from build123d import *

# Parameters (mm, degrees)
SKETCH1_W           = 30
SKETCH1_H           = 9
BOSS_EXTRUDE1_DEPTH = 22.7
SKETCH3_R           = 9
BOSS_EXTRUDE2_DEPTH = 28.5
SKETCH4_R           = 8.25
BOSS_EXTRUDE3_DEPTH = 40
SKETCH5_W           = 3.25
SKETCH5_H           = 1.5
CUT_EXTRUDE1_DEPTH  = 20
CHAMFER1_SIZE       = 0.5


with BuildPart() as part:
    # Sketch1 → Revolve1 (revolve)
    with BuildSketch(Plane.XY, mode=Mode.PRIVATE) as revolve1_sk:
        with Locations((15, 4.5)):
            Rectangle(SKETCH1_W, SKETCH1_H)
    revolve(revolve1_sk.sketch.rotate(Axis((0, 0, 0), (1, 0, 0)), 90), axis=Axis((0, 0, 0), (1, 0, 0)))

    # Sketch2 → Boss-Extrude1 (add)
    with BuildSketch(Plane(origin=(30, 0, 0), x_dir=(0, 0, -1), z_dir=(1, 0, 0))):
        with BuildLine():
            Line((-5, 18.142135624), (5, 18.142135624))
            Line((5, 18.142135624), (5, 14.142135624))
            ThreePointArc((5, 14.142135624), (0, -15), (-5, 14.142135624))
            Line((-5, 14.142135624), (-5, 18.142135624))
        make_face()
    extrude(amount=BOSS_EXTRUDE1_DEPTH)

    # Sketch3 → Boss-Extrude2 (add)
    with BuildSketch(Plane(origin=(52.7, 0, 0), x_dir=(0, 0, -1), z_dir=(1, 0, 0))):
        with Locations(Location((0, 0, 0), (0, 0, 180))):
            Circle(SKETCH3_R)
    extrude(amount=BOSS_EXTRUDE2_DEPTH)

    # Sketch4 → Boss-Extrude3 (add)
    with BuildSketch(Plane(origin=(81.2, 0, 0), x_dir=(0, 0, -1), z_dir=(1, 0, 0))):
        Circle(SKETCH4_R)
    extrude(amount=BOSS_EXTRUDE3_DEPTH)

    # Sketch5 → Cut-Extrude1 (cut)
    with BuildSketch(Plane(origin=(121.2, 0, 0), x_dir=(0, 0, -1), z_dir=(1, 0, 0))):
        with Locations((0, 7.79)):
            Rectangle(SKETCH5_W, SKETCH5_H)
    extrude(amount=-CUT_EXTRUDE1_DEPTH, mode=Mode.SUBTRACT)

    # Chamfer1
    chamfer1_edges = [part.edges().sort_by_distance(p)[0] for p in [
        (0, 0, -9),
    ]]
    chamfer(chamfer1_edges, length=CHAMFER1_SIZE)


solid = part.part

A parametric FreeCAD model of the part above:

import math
import FreeCAD as App
import Part
import Sketcher


def edges_at(feature, points):
    """Names of the edges that pass closest to the given points."""
    edges = feature.Shape.Edges
    near = lambda p: min(range(len(edges)), key=lambda i: edges[i].distToShape(Part.Vertex(*p))[0])
    return sorted({f"Edge{near(p) + 1}" for p in points})

doc = App.newDocument("Part")
params = doc.addObject("Spreadsheet::Sheet", "Params")
for row, (alias, value) in enumerate([
    ("sketch1_width", "30 mm"),
    ("sketch1_height", "9 mm"),
    ("revolution_angle", "360 deg"),
    ("sketch2_radius", "15 mm"),
    ("sketch2_width", "4 mm"),
    ("sketch2_height", "10 mm"),
    ("pad1_length", "22.7 mm"),
    ("sketch3_diameter", "18 mm"),
    ("pad2_length", "28.5 mm"),
    ("sketch4_diameter", "16.5 mm"),
    ("pad3_length", "40 mm"),
    ("sketch5_width", "1.5 mm"),
    ("sketch5_height", "3.25 mm"),
    ("pocket1_length", "20 mm"),
    ("chamfer_size", "0.5 mm"),
], start=1):
    params.set(f"A{row}", alias)
    params.set(f"B{row}", "=" + value)
    params.setAlias(f"B{row}", alias)

body = doc.addObject("PartDesign::Body", "Body")

sketch1 = body.newObject("Sketcher::SketchObject", "Sketch")
sketch1.AttachmentSupport = (doc.getObject("XY_Plane"), [""])
sketch1.MapMode = "FlatFace"
sketch1.addGeometry(Part.LineSegment(App.Vector(0, 9, 0), App.Vector(0, 0, 0)), False)
sketch1.addGeometry(Part.LineSegment(App.Vector(0, 0, 0), App.Vector(30, 0, 0)), False)
sketch1.addGeometry(Part.LineSegment(App.Vector(30, 0, 0), App.Vector(30, 9, 0)), False)
sketch1.addGeometry(Part.LineSegment(App.Vector(30, 9, 0), App.Vector(0, 9, 0)), False)
sketch1.addConstraint(Sketcher.Constraint("Coincident", 0, 2, 1, 1))
sketch1.addConstraint(Sketcher.Constraint("Coincident", 1, 2, 2, 1))
sketch1.addConstraint(Sketcher.Constraint("Coincident", 2, 2, 3, 1))
sketch1.addConstraint(Sketcher.Constraint("Coincident", 3, 2, 0, 1))
sketch1.addConstraint(Sketcher.Constraint("Vertical", 0))
sketch1.addConstraint(Sketcher.Constraint("Horizontal", 1))
sketch1.addConstraint(Sketcher.Constraint("Vertical", 2))
sketch1.addConstraint(Sketcher.Constraint("Horizontal", 3))
sketch1.addConstraint(Sketcher.Constraint("Coincident", 0, 2, -1, 1))
sketch1.addConstraint(Sketcher.Constraint("DistanceX", 1, 1, 1, 2, 30.0))
sketch1.addConstraint(Sketcher.Constraint("DistanceY", 0, 2, 0, 1, 9.0))
sketch1.setExpression("Constraints[9]", "Params.sketch1_width")
sketch1.setExpression("Constraints[10]", "Params.sketch1_height")
revolution = body.newObject("PartDesign::Revolution", "Revolution")
revolution.Profile = sketch1
revolution.ReferenceAxis = (sketch1, ["H_Axis"])
revolution.setExpression("Angle", "Params.revolution_angle")

sketch2 = body.newObject("Sketcher::SketchObject", "Sketch001")
sketch2.AttachmentSupport = (doc.getObject("YZ_Plane"), [""])
sketch2.MapMode = "FlatFace"
sketch2.AttachmentOffset = App.Placement(App.Vector(0, 0, 30), App.Rotation())
sketch2.addGeometry(Part.LineSegment(App.Vector(18.1, -5, 0), App.Vector(18.1, 5, 0)), False)
sketch2.addGeometry(Part.LineSegment(App.Vector(18.1, 5, 0), App.Vector(14.1, 5, 0)), False)
sketch2.addGeometry(Part.ArcOfCircle(Part.Circle(App.Vector(0, 0, 0), App.Vector(0, 0, 1), 15), math.radians(19), math.radians(341)), False)
sketch2.addGeometry(Part.LineSegment(App.Vector(14.1, -5, 0), App.Vector(18.1, -5, 0)), False)
sketch2.addConstraint(Sketcher.Constraint("Coincident", 0, 2, 1, 1))
sketch2.addConstraint(Sketcher.Constraint("Coincident", 1, 2, 2, 1))
sketch2.addConstraint(Sketcher.Constraint("Coincident", 2, 2, 3, 1))
sketch2.addConstraint(Sketcher.Constraint("Coincident", 3, 2, 0, 1))
sketch2.addConstraint(Sketcher.Constraint("Vertical", 0))
sketch2.addConstraint(Sketcher.Constraint("Horizontal", 1))
sketch2.addConstraint(Sketcher.Constraint("Horizontal", 3))
sketch2.addConstraint(Sketcher.Constraint("Coincident", 2, 3, -1, 1))
sketch2.addConstraint(Sketcher.Constraint("Vertical", 1, 2, 2, 2))
sketch2.addConstraint(Sketcher.Constraint("Radius", 2, 15.0))
sketch2.addConstraint(Sketcher.Constraint("DistanceX", 1, 2, 1, 1, 4.0))
sketch2.addConstraint(Sketcher.Constraint("DistanceY", 0, 1, 0, 2, 10.0))
sketch2.setExpression("Constraints[9]", "Params.sketch2_radius")
sketch2.setExpression("Constraints[10]", "Params.sketch2_width")
sketch2.setExpression("Constraints[11]", "Params.sketch2_height")
pad1 = body.newObject("PartDesign::Pad", "Pad")
pad1.Profile = sketch2
pad1.setExpression("Length", "Params.pad1_length")

sketch3 = body.newObject("Sketcher::SketchObject", "Sketch002")
sketch3.AttachmentSupport = (doc.getObject("YZ_Plane"), [""])
sketch3.MapMode = "FlatFace"
sketch3.AttachmentOffset = App.Placement(App.Vector(0, 0, 52.7), App.Rotation())
sketch3.addGeometry(Part.Circle(App.Vector(0, 0, 0), App.Vector(0, 0, 1), 9), False)
sketch3.addConstraint(Sketcher.Constraint("Coincident", 0, 3, -1, 1))
sketch3.addConstraint(Sketcher.Constraint("Diameter", 0, 18.0))
sketch3.setExpression("Constraints[1]", "Params.sketch3_diameter")
pad2 = body.newObject("PartDesign::Pad", "Pad001")
pad2.Profile = sketch3
pad2.setExpression("Length", "Params.pad2_length")

sketch4 = body.newObject("Sketcher::SketchObject", "Sketch003")
sketch4.AttachmentSupport = (doc.getObject("YZ_Plane"), [""])
sketch4.MapMode = "FlatFace"
sketch4.AttachmentOffset = App.Placement(App.Vector(0, 0, 81.2), App.Rotation())
sketch4.addGeometry(Part.Circle(App.Vector(0, 0, 0), App.Vector(0, 0, 1), 8), False)
sketch4.addConstraint(Sketcher.Constraint("Coincident", 0, 3, -1, 1))
sketch4.addConstraint(Sketcher.Constraint("Diameter", 0, 16.5))
sketch4.setExpression("Constraints[1]", "Params.sketch4_diameter")
pad3 = body.newObject("PartDesign::Pad", "Pad002")
pad3.Profile = sketch4
pad3.setExpression("Length", "Params.pad3_length")

sketch5 = body.newObject("Sketcher::SketchObject", "Sketch004")
sketch5.AttachmentSupport = (doc.getObject("YZ_Plane"), [""])
sketch5.MapMode = "FlatFace"
sketch5.AttachmentOffset = App.Placement(App.Vector(0, 0, 121.2), App.Rotation())
sketch5.addGeometry(Part.LineSegment(App.Vector(8.5, 1.6, 0), App.Vector(7, 1.6, 0)), False)
sketch5.addGeometry(Part.LineSegment(App.Vector(7, 1.6, 0), App.Vector(7, -1.6, 0)), False)
sketch5.addGeometry(Part.LineSegment(App.Vector(7, -1.6, 0), App.Vector(8.5, -1.6, 0)), False)
sketch5.addGeometry(Part.LineSegment(App.Vector(8.5, -1.6, 0), App.Vector(8.5, 1.6, 0)), False)
sketch5.addConstraint(Sketcher.Constraint("Coincident", 0, 2, 1, 1))
sketch5.addConstraint(Sketcher.Constraint("Coincident", 1, 2, 2, 1))
sketch5.addConstraint(Sketcher.Constraint("Coincident", 2, 2, 3, 1))
sketch5.addConstraint(Sketcher.Constraint("Coincident", 3, 2, 0, 1))
sketch5.addConstraint(Sketcher.Constraint("Horizontal", 0))
sketch5.addConstraint(Sketcher.Constraint("Vertical", 1))
sketch5.addConstraint(Sketcher.Constraint("Horizontal", 2))
sketch5.addConstraint(Sketcher.Constraint("Vertical", 3))
sketch5.addConstraint(Sketcher.Constraint("DistanceX", 0, 2, 0, 1, 1.5))
sketch5.addConstraint(Sketcher.Constraint("DistanceY", 1, 2, 1, 1, 3.25))
sketch5.addConstraint(Sketcher.Constraint("DistanceX", -1, 1, 0, 2, 7.04))
sketch5.addConstraint(Sketcher.Constraint("DistanceY", -1, 1, 0, 2, 1.625))
sketch5.setExpression("Constraints[8]", "Params.sketch5_width")
sketch5.setExpression("Constraints[9]", "Params.sketch5_height")
pocket1 = body.newObject("PartDesign::Pocket", "Pocket")
pocket1.Profile = sketch5
pocket1.setExpression("Length", "Params.pocket1_length")
doc.recompute()

chamfer = body.newObject("PartDesign::Chamfer", "Chamfer")
chamfer.Base = (pocket1, edges_at(pocket1, [(0, 0, -9)]))
chamfer.setExpression("Size", "Params.chamfer_size")

doc.recompute()
